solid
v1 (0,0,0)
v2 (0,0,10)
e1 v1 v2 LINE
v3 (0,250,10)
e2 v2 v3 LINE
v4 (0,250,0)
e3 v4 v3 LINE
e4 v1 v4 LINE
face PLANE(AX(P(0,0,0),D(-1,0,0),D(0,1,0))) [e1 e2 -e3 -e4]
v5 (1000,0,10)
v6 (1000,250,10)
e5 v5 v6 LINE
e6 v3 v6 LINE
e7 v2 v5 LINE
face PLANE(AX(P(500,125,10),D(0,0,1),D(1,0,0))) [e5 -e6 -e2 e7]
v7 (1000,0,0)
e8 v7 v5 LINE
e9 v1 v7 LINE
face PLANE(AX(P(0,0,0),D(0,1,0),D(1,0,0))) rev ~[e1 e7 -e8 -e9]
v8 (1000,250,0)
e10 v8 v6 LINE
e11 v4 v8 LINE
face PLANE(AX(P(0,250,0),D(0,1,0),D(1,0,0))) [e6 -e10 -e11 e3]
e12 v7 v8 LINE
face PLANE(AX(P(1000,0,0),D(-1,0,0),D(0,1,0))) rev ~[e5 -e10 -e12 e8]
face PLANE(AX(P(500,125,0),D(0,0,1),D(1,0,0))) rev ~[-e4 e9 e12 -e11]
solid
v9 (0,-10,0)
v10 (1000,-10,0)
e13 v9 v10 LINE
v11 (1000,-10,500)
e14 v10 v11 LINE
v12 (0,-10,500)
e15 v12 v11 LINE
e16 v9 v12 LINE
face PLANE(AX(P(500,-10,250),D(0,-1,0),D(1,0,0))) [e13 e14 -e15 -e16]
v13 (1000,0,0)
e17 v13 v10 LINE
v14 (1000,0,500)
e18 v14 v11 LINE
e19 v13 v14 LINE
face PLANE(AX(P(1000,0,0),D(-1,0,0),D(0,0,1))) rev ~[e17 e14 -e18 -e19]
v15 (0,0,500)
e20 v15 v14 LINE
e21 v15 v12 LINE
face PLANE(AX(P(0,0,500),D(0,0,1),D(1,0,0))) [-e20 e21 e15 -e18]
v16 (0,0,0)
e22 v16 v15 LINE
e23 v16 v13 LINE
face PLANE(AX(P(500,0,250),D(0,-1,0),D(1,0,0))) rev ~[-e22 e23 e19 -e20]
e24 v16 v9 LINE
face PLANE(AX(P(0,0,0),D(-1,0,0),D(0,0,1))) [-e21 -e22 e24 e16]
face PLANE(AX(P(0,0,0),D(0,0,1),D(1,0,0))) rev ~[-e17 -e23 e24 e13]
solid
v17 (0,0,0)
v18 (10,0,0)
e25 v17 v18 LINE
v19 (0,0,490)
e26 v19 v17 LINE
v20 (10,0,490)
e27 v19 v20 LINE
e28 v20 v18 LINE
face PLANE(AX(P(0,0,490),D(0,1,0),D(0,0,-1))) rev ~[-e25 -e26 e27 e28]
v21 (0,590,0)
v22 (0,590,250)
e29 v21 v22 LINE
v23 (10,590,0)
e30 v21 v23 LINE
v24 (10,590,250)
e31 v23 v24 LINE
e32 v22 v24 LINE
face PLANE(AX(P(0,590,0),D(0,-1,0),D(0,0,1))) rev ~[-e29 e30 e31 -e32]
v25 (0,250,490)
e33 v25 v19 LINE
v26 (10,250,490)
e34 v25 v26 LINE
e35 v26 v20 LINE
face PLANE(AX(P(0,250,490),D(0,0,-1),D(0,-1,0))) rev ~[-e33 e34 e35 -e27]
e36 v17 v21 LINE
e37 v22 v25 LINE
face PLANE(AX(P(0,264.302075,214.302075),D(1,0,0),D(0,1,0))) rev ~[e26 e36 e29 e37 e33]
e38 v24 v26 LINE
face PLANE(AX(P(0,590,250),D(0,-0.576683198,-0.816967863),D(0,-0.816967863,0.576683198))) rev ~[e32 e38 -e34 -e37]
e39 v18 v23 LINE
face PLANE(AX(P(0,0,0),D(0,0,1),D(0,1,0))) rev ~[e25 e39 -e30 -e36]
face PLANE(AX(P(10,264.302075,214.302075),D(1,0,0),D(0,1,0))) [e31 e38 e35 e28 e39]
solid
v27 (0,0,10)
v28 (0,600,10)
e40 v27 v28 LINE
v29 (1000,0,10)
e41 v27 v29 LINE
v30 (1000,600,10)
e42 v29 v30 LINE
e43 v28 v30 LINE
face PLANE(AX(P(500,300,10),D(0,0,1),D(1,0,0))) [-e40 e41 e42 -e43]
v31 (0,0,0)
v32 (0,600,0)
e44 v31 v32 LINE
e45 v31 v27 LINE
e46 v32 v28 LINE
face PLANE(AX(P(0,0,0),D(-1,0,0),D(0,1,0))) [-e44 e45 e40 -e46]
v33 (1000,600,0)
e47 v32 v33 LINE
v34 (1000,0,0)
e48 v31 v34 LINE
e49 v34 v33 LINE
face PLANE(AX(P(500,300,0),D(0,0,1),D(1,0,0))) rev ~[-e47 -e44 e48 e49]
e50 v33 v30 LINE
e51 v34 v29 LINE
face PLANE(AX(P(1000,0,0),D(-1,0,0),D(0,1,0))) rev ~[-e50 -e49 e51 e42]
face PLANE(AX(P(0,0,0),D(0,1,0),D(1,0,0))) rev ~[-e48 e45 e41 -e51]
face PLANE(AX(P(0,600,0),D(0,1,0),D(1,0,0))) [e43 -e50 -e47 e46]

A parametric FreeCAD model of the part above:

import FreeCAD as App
import Part
import Sketcher
Q = App.Units.Quantity

doc = App.newDocument("Part")
body = doc.addObject("PartDesign::Body", "Body")

sketch1 = doc.addObject("Sketcher::SketchObject", "Sketch")
body.addObject(sketch1)
sketch1.AttachmentSupport = (doc.XY_Plane, [""])
sketch1.MapMode = "FlatFace"
sketch1.addGeometry([
    Part.LineSegment(App.Vector(0, 600, 0), App.Vector(0, 0, 0)),
    Part.LineSegment(App.Vector(0, 0, 0), App.Vector(1000, 0, 0)),
    Part.LineSegment(App.Vector(1000, 0, 0), App.Vector(1000, 600, 0)),
    Part.LineSegment(App.Vector(1000, 600, 0), App.Vector(0, 600, 0)),
], False)
sketch1.addConstraint([
    Sketcher.Constraint("Coincident", 0, 2, 1, 1),
    Sketcher.Constraint("Coincident", 1, 2, 2, 1),
    Sketcher.Constraint("Coincident", 2, 2, 3, 1),
    Sketcher.Constraint("Coincident", 3, 2, 0, 1),
    Sketcher.Constraint("Vertical", 0),
    Sketcher.Constraint("Horizontal", 1),
    Sketcher.Constraint("Vertical", 2),
    Sketcher.Constraint("Horizontal", 3),
    Sketcher.Constraint("Coincident", 0, 2, -1, 1),
    Sketcher.Constraint("DistanceX", 1, 1, 1, 2, Q("1000 mm")),
    Sketcher.Constraint("DistanceY", 0, 2, 0, 1, Q("600 mm")),
])
pad1 = doc.addObject("PartDesign::Pad", "Pad")
body.addObject(pad1)
pad1.Profile = sketch1
pad1.Length = 10
body2 = doc.addObject("PartDesign::Body", "Body001")

sketch2 = doc.addObject("Sketcher::SketchObject", "Sketch001")
body2.addObject(sketch2)
sketch2.AttachmentSupport = (doc.getObject("XZ_Plane001"), [""])
sketch2.MapMode = "FlatFace"
sketch2.addGeometry([
    Part.LineSegment(App.Vector(0, 500, 0), App.Vector(0, 0, 0)),
    Part.LineSegment(App.Vector(0, 0, 0), App.Vector(1000, 0, 0)),
    Part.LineSegment(App.Vector(1000, 0, 0), App.Vector(1000, 500, 0)),
    Part.LineSegment(App.Vector(1000, 500, 0), App.Vector(0, 500, 0)),
], False)
sketch2.addConstraint([
    Sketcher.Constraint("Coincident", 0, 2, 1, 1),
    Sketcher.Constraint("Coincident", 1, 2, 2, 1),
    Sketcher.Constraint("Coincident", 2, 2, 3, 1),
    Sketcher.Constraint("Coincident", 3, 2, 0, 1),
    Sketcher.Constraint("Vertical", 0),
    Sketcher.Constraint("Horizontal", 1),
    Sketcher.Constraint("Vertical", 2),
    Sketcher.Constraint("Horizontal", 3),
    Sketcher.Constraint("Coincident", 0, 2, -1, 1),
    Sketcher.Constraint("DistanceX", 1, 1, 1, 2, Q("1000 mm")),
    Sketcher.Constraint("DistanceY", 0, 2, 0, 1, Q("500 mm")),
])
pad2 = doc.addObject("PartDesign::Pad", "Pad001")
body2.addObject(pad2)
pad2.Profile = sketch2
pad2.Length = 10
body3 = doc.addObject("PartDesign::Body", "Body002")

sketch3 = doc.addObject("Sketcher::SketchObject", "Sketch002")
body3.addObject(sketch3)
sketch3.AttachmentSupport = (doc.getObject("YZ_Plane002"), [""])
sketch3.MapMode = "FlatFace"
sketch3.addGeometry([
    Part.LineSegment(App.Vector(0, 490, 0), App.Vector(0, 0, 0)),
    Part.LineSegment(App.Vector(0, 0, 0), App.Vector(590, 0, 0)),
    Part.LineSegment(App.Vector(590, 0, 0), App.Vector(590, 250, 0)),
    Part.LineSegment(App.Vector(590, 250, 0), App.Vector(250, 490, 0)),
    Part.LineSegment(App.Vector(250, 490, 0), App.Vector(0, 490, 0)),
], False)
sketch3.addConstraint([
    Sketcher.Constraint("Coincident", 0, 2, 1, 1),
    Sketcher.Constraint("Coincident", 1, 2, 2, 1),
    Sketcher.Constraint("Coincident", 2, 2, 3, 1),
    Sketcher.Constraint("Coincident", 3, 2, 4, 1),
    Sketcher.Constraint("Coincident", 4, 2, 0, 1),
    Sketcher.Constraint("Vertical", 0),
    Sketcher.Constraint("Horizontal", 1),
    Sketcher.Constraint("Vertical", 2),
    Sketcher.Constraint("Horizontal", 4),
    Sketcher.Constraint("Coincident", 0, 2, -1, 1),
    Sketcher.Constraint("Equal", 4, 2),
    Sketcher.Constraint("DistanceX", 1, 1, 1, 2, Q("590 mm")),
    Sketcher.Constraint("DistanceX", 4, 2, 4, 1, Q("250 mm")),
    Sketcher.Constraint("DistanceY", 0, 2, 0, 1, Q("490 mm")),
])
pad3 = doc.addObject("PartDesign::Pad", "Pad002")
body3.addObject(pad3)
pad3.Profile = sketch3
pad3.Length = 10
body4 = doc.addObject("PartDesign::Body", "Body003")

sketch4 = doc.addObject("Sketcher::SketchObject", "Sketch003")
body4.addObject(sketch4)
sketch4.AttachmentSupport = (doc.getObject("XY_Plane003"), [""])
sketch4.MapMode = "FlatFace"
sketch4.addGeometry([
    Part.LineSegment(App.Vector(0, 250, 0), App.Vector(0, 0, 0)),
    Part.LineSegment(App.Vector(0, 0, 0), App.Vector(1000, 0, 0)),
    Part.LineSegment(App.Vector(1000, 0, 0), App.Vector(1000, 250, 0)),
    Part.LineSegment(App.Vector(1000, 250, 0), App.Vector(0, 250, 0)),
], False)
sketch4.addConstraint([
    Sketcher.Constraint("Coincident", 0, 2, 1, 1),
    Sketcher.Constraint("Coincident", 1, 2, 2, 1),
    Sketcher.Constraint("Coincident", 2, 2, 3, 1),
    Sketcher.Constraint("Coincident", 3, 2, 0, 1),
    Sketcher.Constraint("Vertical", 0),
    Sketcher.Constraint("Horizontal", 1),
    Sketcher.Constraint("Vertical", 2),
    Sketcher.Constraint("Horizontal", 3),
    Sketcher.Constraint("Coincident", 0, 2, -1, 1),
    Sketcher.Constraint("DistanceX", 1, 1, 1, 2, Q("1000 mm")),
    Sketcher.Constraint("DistanceY", 0, 2, 0, 1, Q("250 mm")),
])
pad4 = doc.addObject("PartDesign::Pad", "Pad003")
body4.addObject(pad4)
pad4.Profile = sketch4
pad4.Length = 10

doc.recompute()
